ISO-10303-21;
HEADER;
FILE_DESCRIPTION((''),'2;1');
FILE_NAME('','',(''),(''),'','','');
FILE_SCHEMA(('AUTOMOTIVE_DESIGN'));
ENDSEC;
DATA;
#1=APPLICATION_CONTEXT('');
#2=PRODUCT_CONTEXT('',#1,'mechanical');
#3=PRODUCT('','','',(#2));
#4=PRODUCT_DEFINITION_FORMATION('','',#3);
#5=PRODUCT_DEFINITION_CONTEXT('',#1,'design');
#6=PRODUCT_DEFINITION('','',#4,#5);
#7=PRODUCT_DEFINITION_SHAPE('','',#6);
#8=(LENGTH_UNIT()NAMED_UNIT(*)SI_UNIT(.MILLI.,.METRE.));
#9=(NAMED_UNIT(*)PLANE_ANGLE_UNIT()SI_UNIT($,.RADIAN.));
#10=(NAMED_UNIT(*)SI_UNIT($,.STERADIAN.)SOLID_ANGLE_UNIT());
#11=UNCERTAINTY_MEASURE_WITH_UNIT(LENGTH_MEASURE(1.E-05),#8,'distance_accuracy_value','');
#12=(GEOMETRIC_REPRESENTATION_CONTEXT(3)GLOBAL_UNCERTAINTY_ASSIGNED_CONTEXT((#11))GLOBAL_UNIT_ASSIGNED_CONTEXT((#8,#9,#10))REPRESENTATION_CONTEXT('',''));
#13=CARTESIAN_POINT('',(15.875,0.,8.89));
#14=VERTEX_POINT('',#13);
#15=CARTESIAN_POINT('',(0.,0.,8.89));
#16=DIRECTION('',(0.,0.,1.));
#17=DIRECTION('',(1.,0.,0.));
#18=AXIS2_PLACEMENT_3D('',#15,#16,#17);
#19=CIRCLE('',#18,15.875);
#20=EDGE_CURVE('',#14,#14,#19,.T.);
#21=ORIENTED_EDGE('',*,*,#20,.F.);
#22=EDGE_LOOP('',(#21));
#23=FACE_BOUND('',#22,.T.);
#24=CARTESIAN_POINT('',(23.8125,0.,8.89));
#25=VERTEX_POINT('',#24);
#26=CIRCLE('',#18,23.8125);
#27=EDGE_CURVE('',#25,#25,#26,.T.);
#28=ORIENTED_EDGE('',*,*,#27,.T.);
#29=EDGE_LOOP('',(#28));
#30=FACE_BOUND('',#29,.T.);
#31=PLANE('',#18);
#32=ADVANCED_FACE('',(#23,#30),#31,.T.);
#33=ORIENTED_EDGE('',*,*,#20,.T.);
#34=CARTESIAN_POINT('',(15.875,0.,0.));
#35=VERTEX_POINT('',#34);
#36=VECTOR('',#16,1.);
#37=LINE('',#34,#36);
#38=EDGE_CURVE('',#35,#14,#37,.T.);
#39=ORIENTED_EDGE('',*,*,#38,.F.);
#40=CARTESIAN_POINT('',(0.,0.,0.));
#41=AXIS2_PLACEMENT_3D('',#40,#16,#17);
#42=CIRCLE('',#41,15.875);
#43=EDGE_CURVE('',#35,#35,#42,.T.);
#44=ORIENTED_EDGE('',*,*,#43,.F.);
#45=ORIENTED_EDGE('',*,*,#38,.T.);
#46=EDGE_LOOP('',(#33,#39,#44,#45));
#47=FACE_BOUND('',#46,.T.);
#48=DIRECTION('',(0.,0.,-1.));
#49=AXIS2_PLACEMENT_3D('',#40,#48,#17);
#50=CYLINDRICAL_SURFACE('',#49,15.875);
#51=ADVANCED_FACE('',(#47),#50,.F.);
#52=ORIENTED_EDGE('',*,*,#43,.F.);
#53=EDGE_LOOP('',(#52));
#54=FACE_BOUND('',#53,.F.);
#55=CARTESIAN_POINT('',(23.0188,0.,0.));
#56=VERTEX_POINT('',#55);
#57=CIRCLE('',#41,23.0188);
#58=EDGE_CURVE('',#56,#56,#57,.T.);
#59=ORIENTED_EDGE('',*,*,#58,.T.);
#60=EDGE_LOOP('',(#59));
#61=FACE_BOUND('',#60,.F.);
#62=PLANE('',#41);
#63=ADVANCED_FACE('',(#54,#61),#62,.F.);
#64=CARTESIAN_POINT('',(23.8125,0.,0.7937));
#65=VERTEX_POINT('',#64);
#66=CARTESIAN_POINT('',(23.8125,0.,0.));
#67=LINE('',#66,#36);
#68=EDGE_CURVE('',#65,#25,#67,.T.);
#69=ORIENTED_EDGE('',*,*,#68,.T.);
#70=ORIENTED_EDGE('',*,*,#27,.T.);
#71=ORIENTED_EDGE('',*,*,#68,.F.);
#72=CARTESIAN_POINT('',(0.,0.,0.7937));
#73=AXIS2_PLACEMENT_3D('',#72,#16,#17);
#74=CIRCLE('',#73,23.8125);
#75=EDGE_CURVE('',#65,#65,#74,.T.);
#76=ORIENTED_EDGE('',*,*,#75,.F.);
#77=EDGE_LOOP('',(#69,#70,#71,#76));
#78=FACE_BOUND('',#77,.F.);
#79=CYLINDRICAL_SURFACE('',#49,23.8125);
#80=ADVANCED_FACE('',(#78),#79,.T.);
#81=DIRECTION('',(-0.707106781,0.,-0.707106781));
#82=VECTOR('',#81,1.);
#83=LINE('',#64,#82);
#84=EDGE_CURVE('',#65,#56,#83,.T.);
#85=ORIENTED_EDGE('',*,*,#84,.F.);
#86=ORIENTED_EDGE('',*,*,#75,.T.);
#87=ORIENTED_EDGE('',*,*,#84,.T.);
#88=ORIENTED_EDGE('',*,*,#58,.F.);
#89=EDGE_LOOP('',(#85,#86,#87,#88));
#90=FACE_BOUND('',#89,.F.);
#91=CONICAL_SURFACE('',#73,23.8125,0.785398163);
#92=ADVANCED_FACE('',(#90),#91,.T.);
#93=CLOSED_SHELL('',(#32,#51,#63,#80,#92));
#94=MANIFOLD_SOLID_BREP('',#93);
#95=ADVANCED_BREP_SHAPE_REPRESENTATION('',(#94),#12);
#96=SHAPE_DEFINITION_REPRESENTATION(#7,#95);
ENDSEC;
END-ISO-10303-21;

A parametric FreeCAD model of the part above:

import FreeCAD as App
import Part
import Sketcher
from FreeCAD import Vector
Q = App.Units.Quantity


def edges_at(feature, points):
    """Names of the edges that pass closest to the given points."""
    edges = feature.Shape.Edges
    near = lambda p: min(range(len(edges)), key=lambda i: edges[i].distToShape(Part.Vertex(*p))[0])
    return sorted({f"Edge{near(p) + 1}" for p in points})

doc = App.newDocument("Part")
body = doc.addObject("PartDesign::Body", "Body")

# Sketch on XY plane
sketch1 = doc.addObject("Sketcher::SketchObject", "Sketch")
body.addObject(sketch1)
sketch1.AttachmentSupport = (doc.XY_Plane, [""])
sketch1.MapMode = "FlatFace"
sketch1.addGeometry(Part.Circle(Vector(0, 0, 0), Vector(0, 0, 1), 24), False)
sketch1.addGeometry(Part.Circle(Vector(0, 0, 0), Vector(0, 0, 1), 16), False)
sketch1.addConstraint(Sketcher.Constraint("Coincident", 0, 3, -1, 1))
sketch1.addConstraint(Sketcher.Constraint("Coincident", 1, 3, -1, 1))
sketch1.addConstraint(Sketcher.Constraint("Diameter", 1, Q("1.25 in")))
sketch1.addConstraint(Sketcher.Constraint("Diameter", 0, Q("1.875 in")))
pad1 = doc.addObject("PartDesign::Pad", "Pad")
body.addObject(pad1)
pad1.Profile = sketch1
pad1.Length = Q("0.35 in")
doc.recompute()

chamfer = doc.addObject("PartDesign::Chamfer", "Chamfer")
body.addObject(chamfer)
chamfer.Base = (pad1, edges_at(pad1, [(-23.812, 0, 0)]))
chamfer.Size = Q("0.031248 in")

doc.recompute()
